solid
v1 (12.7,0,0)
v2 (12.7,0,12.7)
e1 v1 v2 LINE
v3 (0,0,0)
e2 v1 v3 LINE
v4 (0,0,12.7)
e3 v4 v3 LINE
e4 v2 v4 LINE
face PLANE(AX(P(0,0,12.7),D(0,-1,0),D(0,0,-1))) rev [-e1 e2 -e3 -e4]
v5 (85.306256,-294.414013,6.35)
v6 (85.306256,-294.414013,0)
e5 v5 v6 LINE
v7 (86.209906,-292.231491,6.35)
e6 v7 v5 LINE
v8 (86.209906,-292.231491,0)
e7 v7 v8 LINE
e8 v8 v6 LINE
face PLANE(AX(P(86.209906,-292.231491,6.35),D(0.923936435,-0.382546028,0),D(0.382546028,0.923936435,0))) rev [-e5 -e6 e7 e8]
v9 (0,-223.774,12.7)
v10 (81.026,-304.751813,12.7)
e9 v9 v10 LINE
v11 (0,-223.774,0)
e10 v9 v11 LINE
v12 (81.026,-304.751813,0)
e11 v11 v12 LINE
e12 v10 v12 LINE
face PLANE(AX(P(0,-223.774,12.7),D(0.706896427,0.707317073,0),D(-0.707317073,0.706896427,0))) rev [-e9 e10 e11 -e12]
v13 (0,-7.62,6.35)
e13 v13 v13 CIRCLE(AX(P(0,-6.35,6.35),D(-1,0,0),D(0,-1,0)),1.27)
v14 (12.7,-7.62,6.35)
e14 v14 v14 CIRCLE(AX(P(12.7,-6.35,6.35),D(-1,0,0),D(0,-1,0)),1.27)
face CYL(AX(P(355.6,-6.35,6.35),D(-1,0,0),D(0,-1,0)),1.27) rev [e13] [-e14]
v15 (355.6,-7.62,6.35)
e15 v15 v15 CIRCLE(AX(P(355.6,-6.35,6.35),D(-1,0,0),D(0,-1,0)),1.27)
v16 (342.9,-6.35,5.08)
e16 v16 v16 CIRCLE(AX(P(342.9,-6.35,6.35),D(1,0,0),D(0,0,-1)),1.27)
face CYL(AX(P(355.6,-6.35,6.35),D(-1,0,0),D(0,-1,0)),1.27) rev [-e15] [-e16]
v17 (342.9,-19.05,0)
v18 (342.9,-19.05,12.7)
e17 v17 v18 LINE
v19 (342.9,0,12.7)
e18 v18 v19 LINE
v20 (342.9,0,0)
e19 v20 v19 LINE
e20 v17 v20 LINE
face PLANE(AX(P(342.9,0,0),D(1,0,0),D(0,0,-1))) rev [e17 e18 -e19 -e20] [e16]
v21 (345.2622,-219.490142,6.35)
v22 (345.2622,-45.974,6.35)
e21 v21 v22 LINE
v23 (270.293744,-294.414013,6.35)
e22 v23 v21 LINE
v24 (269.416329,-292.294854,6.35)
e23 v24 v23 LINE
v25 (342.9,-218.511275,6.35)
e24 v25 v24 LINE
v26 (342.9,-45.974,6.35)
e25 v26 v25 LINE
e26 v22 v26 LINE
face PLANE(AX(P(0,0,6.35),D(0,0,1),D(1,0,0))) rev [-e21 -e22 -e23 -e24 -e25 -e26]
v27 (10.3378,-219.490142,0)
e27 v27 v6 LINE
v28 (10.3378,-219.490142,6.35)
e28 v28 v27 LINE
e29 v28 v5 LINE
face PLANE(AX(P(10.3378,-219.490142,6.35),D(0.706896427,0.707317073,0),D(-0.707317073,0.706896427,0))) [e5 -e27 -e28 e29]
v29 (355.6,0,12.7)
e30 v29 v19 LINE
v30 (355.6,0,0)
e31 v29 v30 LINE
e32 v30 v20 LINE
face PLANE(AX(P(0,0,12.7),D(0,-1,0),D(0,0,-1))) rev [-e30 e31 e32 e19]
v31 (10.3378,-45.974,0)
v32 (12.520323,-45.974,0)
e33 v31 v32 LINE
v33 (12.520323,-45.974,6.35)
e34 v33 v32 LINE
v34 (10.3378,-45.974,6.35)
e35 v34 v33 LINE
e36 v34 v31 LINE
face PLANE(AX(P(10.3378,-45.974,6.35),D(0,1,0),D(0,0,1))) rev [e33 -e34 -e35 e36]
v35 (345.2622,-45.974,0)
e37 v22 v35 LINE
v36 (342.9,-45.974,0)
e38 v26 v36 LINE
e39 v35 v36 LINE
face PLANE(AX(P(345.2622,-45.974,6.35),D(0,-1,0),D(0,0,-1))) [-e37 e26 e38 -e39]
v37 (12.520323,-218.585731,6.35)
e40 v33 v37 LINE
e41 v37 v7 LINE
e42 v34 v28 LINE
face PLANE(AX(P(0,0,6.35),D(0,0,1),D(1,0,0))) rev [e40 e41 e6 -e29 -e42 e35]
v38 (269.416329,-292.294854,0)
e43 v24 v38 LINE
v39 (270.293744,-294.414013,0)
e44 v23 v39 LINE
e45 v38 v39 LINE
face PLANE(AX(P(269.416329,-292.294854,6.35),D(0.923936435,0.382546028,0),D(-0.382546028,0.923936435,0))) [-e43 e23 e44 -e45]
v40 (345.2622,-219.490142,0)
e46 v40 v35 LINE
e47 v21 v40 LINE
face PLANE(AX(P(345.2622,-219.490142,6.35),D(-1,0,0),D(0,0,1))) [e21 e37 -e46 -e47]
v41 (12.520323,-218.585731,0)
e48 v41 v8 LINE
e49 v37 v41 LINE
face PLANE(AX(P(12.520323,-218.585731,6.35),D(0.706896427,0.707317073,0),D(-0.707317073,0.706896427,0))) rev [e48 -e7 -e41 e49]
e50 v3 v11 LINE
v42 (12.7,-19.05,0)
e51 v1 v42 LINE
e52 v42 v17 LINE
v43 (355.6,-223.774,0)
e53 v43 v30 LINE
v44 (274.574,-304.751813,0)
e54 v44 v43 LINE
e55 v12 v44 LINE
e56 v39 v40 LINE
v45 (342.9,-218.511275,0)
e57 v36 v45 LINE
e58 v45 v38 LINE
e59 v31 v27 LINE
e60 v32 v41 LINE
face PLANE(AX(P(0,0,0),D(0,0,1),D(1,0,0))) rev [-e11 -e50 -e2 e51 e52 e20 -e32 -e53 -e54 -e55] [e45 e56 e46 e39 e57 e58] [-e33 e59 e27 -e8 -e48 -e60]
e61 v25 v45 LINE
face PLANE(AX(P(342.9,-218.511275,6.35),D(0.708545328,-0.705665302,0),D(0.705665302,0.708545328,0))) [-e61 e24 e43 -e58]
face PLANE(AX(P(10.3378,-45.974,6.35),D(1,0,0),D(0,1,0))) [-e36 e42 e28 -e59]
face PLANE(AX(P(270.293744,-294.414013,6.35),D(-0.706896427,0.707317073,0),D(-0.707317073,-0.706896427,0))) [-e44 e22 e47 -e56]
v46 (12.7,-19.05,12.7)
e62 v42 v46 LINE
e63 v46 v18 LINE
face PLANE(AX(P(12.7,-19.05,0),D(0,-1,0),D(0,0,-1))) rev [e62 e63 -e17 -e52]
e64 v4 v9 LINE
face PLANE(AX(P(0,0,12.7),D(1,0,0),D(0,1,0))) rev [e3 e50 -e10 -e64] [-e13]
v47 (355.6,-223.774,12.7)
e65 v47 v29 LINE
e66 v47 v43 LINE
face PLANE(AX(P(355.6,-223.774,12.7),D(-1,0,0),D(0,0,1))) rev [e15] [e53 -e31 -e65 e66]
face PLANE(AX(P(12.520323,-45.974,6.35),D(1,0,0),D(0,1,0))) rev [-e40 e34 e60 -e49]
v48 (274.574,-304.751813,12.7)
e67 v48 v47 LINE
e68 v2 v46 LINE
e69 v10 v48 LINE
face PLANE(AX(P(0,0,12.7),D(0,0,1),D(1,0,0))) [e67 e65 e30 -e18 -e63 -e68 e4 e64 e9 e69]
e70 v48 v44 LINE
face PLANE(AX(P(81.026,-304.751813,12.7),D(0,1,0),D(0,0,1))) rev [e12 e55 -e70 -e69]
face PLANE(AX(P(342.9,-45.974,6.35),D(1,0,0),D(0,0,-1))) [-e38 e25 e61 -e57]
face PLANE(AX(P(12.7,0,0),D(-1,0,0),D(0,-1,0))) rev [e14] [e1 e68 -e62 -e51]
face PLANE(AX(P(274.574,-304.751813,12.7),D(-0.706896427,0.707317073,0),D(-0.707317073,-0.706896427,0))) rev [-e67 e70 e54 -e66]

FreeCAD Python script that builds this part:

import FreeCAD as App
import Part
import Sketcher
from FreeCAD import Vector
Q = App.Units.Quantity


def add_polygon(sketch, points):
    """Adds a closed chain of lines whose ends are joined by coincident constraints."""
    first, n = sketch.GeometryCount, len(points)
    for a, b in zip(points, points[1:] + points[:1]):
        sketch.addGeometry(Part.LineSegment(App.Vector(*a, 0), App.Vector(*b, 0)), False)
    for i in range(n):
        sketch.addConstraint(Sketcher.Constraint("Coincident", first + i, 2, first + (i + 1) % n, 1))

doc = App.newDocument("Part")
body = doc.addObject("PartDesign::Body", "Body")

# Sketch on XY plane
sketch1 = body.newObject("Sketcher::SketchObject", "Sketch")
sketch1.AttachmentSupport = (doc.getObject("XY_Plane"), [""])
sketch1.MapMode = "FlatFace"
add_polygon(sketch1, [(356, 0), (0, 0), (0, -224), (81, -305), (275, -305), (356, -224)])  # lines 0-5
sketch1.addConstraint(Sketcher.Constraint("Horizontal", 0))
sketch1.addConstraint(Sketcher.Constraint("Vertical", 1))
sketch1.addConstraint(Sketcher.Constraint("Horizontal", 3))
sketch1.addConstraint(Sketcher.Constraint("Vertical", 5))
sketch1.addConstraint(Sketcher.Constraint("Coincident", 0, 2, -1, 1))
sketch1.addConstraint(Sketcher.Constraint("Horizontal", 1, 2, 4, 2))
sketch1.addConstraint(Sketcher.Constraint("Equal", 2, 4))
sketch1.addConstraint(Sketcher.Constraint("DistanceX", 0, 2, 0, 1, Q("14 in")))
sketch1.addConstraint(Sketcher.Constraint("DistanceX", 3, 1, 3, 2, Q("7.62 in")))
sketch1.addConstraint(Sketcher.Constraint("DistanceY", 1, 2, 1, 1, Q("8.81 in")))
sketch1.addConstraint(Sketcher.Constraint("Distance", 2, Q("4.51 in")))
pad1 = body.newObject("PartDesign::Pad", "Pad")
pad1.Profile = sketch1
pad1.Length = Q("0.5 in")

# Sketch on XY plane
sketch2 = body.newObject("Sketcher::SketchObject", "Sketch001")
sketch2.AttachmentSupport = (doc.getObject("XY_Plane"), [""])
sketch2.MapMode = "FlatFace"
sketch2.AttachmentOffset = App.Placement(Vector(0, 0, 0.5 * 25.4), App.Rotation())
add_polygon(sketch2, [(13, 0), (13, -19), (343, -19), (343, 0)])  # lines 0-3
sketch2.addConstraint(Sketcher.Constraint("Vertical", 0))
sketch2.addConstraint(Sketcher.Constraint("Horizontal", 1))
sketch2.addConstraint(Sketcher.Constraint("Vertical", 2))
sketch2.addConstraint(Sketcher.Constraint("Horizontal", 3))
sketch2.addConstraint(Sketcher.Constraint("PointOnObject", 2, 2, -1))
sketch2.addConstraint(Sketcher.Constraint("DistanceX", 1, 1, 1, 2, Q("13 in")))
sketch2.addConstraint(Sketcher.Constraint("DistanceY", 0, 2, 0, 1, Q("0.75 in")))
sketch2.addConstraint(Sketcher.Constraint("DistanceX", -1, 1, 0, 2, Q("0.5 in")))
pocket1 = body.newObject("PartDesign::Pocket", "Pocket")
pocket1.Profile = sketch2
pocket1.Type = "ThroughAll"

# Sketch on YZ plane
sketch3 = body.newObject("Sketcher::SketchObject", "Sketch002")
sketch3.AttachmentSupport = (doc.getObject("YZ_Plane"), [""])
sketch3.MapMode = "FlatFace"
sketch3.addGeometry(Part.Circle(Vector(-6.3, 6.3, 0), Vector(0, 0, 1), 1.3), False)
sketch3.addConstraint(Sketcher.Constraint("Diameter", 0, Q("0.1 in")))
sketch3.addConstraint(Sketcher.Constraint("DistanceX", 0, 3, -1, 1, Q("0.25 in")))
sketch3.addConstraint(Sketcher.Constraint("DistanceY", -1, 1, 0, 3, Q("0.25 in")))
pocket2 = body.newObject("PartDesign::Pocket", "Pocket001")
pocket2.Profile = sketch3
pocket2.Type = "ThroughAll"
pocket2.Reversed = True

# Sketch on XY plane
sketch4 = body.newObject("Sketcher::SketchObject", "Sketch003")
sketch4.AttachmentSupport = (doc.getObject("XY_Plane"), [""])
sketch4.MapMode = "FlatFace"
add_polygon(sketch4, [(10.3378, -45.974), (10.3378, -219.490142), (85.306256, -294.414013), (86.209906, -292.231491), (12.520323, -218.585731), (12.520323, -45.974)])  # lines 0-5
add_polygon(sketch4, [(270.293744, -294.414013), (345.2622, -219.490142), (345.2622, -45.974), (342.9, -45.974), (342.9, -218.511275), (269.416329, -292.294854)])  # lines 6-11
sketch4.addConstraint(Sketcher.Constraint("Vertical", 0))
sketch4.addConstraint(Sketcher.Constraint("Vertical", 4))
sketch4.addConstraint(Sketcher.Constraint("Horizontal", 5))
sketch4.addConstraint(Sketcher.Constraint("Vertical", 7))
sketch4.addConstraint(Sketcher.Constraint("Horizontal", 8))
sketch4.addConstraint(Sketcher.Constraint("Vertical", 9))
sketch4.addConstraint(Sketcher.Constraint("DistanceX", -1, 1, 8, 2, Q("13.5 in")))
sketch4.addConstraint(Sketcher.Constraint("DistanceX", 8, 2, 8, 1, Q("0.093 in")))
sketch4.addConstraint(Sketcher.Constraint("DistanceY", 4, 2, -1, 1, Q("1.81 in")))
sketch4.addConstraint(Sketcher.Constraint("DistanceY", 7, 2, -1, 1, Q("1.81 in")))
sketch4.addConstraint(Sketcher.Constraint("Distance", 2, Q("0.093 in")))
sketch4.addConstraint(Sketcher.Constraint("DistanceX", -1, 1, 0, 2, Q("0.407 in")))
sketch4.addConstraint(Sketcher.Constraint("Distance", 11, Q("0.0903 in")))
sketch4.addConstraint(Sketcher.Constraint("DistanceY", 0, 2, 0, 1, 173.516142))
sketch4.addConstraint(Sketcher.Constraint("DistanceY", 4, 1, 4, 2, 172.611731))
sketch4.addConstraint(Sketcher.Constraint("DistanceY", 7, 1, 7, 2, 173.516142))
sketch4.addConstraint(Sketcher.Constraint("DistanceX", 5, 2, 5, 1, 2.182523))
sketch4.addConstraint(Sketcher.Constraint("DistanceY", 9, 2, 9, 1, 172.537275))
sketch4.addConstraint(Sketcher.Constraint("DistanceY", 2, 2, -1, 1, 292.231491))
sketch4.addConstraint(Sketcher.Constraint("DistanceX", -1, 1, 10, 2, 269.416329))
sketch4.addConstraint(Sketcher.Constraint("DistanceY", 1, 2, 0, 2, 74.923872))
sketch4.addConstraint(Sketcher.Constraint("DistanceY", 10, 2, 9, 2, 73.783579))
sketch4.addConstraint(Sketcher.Constraint("DistanceY", 11, 2, 10, 2, 2.119159))
sketch4.addConstraint(Sketcher.Constraint("DistanceX", 2, 2, 11, 2, 184.083838))
pocket3 = body.newObject("PartDesign::Pocket", "Pocket002")
pocket3.Profile = sketch4
pocket3.Length = Q("0.25 in")
pocket3.Reversed = True

doc.recompute()
